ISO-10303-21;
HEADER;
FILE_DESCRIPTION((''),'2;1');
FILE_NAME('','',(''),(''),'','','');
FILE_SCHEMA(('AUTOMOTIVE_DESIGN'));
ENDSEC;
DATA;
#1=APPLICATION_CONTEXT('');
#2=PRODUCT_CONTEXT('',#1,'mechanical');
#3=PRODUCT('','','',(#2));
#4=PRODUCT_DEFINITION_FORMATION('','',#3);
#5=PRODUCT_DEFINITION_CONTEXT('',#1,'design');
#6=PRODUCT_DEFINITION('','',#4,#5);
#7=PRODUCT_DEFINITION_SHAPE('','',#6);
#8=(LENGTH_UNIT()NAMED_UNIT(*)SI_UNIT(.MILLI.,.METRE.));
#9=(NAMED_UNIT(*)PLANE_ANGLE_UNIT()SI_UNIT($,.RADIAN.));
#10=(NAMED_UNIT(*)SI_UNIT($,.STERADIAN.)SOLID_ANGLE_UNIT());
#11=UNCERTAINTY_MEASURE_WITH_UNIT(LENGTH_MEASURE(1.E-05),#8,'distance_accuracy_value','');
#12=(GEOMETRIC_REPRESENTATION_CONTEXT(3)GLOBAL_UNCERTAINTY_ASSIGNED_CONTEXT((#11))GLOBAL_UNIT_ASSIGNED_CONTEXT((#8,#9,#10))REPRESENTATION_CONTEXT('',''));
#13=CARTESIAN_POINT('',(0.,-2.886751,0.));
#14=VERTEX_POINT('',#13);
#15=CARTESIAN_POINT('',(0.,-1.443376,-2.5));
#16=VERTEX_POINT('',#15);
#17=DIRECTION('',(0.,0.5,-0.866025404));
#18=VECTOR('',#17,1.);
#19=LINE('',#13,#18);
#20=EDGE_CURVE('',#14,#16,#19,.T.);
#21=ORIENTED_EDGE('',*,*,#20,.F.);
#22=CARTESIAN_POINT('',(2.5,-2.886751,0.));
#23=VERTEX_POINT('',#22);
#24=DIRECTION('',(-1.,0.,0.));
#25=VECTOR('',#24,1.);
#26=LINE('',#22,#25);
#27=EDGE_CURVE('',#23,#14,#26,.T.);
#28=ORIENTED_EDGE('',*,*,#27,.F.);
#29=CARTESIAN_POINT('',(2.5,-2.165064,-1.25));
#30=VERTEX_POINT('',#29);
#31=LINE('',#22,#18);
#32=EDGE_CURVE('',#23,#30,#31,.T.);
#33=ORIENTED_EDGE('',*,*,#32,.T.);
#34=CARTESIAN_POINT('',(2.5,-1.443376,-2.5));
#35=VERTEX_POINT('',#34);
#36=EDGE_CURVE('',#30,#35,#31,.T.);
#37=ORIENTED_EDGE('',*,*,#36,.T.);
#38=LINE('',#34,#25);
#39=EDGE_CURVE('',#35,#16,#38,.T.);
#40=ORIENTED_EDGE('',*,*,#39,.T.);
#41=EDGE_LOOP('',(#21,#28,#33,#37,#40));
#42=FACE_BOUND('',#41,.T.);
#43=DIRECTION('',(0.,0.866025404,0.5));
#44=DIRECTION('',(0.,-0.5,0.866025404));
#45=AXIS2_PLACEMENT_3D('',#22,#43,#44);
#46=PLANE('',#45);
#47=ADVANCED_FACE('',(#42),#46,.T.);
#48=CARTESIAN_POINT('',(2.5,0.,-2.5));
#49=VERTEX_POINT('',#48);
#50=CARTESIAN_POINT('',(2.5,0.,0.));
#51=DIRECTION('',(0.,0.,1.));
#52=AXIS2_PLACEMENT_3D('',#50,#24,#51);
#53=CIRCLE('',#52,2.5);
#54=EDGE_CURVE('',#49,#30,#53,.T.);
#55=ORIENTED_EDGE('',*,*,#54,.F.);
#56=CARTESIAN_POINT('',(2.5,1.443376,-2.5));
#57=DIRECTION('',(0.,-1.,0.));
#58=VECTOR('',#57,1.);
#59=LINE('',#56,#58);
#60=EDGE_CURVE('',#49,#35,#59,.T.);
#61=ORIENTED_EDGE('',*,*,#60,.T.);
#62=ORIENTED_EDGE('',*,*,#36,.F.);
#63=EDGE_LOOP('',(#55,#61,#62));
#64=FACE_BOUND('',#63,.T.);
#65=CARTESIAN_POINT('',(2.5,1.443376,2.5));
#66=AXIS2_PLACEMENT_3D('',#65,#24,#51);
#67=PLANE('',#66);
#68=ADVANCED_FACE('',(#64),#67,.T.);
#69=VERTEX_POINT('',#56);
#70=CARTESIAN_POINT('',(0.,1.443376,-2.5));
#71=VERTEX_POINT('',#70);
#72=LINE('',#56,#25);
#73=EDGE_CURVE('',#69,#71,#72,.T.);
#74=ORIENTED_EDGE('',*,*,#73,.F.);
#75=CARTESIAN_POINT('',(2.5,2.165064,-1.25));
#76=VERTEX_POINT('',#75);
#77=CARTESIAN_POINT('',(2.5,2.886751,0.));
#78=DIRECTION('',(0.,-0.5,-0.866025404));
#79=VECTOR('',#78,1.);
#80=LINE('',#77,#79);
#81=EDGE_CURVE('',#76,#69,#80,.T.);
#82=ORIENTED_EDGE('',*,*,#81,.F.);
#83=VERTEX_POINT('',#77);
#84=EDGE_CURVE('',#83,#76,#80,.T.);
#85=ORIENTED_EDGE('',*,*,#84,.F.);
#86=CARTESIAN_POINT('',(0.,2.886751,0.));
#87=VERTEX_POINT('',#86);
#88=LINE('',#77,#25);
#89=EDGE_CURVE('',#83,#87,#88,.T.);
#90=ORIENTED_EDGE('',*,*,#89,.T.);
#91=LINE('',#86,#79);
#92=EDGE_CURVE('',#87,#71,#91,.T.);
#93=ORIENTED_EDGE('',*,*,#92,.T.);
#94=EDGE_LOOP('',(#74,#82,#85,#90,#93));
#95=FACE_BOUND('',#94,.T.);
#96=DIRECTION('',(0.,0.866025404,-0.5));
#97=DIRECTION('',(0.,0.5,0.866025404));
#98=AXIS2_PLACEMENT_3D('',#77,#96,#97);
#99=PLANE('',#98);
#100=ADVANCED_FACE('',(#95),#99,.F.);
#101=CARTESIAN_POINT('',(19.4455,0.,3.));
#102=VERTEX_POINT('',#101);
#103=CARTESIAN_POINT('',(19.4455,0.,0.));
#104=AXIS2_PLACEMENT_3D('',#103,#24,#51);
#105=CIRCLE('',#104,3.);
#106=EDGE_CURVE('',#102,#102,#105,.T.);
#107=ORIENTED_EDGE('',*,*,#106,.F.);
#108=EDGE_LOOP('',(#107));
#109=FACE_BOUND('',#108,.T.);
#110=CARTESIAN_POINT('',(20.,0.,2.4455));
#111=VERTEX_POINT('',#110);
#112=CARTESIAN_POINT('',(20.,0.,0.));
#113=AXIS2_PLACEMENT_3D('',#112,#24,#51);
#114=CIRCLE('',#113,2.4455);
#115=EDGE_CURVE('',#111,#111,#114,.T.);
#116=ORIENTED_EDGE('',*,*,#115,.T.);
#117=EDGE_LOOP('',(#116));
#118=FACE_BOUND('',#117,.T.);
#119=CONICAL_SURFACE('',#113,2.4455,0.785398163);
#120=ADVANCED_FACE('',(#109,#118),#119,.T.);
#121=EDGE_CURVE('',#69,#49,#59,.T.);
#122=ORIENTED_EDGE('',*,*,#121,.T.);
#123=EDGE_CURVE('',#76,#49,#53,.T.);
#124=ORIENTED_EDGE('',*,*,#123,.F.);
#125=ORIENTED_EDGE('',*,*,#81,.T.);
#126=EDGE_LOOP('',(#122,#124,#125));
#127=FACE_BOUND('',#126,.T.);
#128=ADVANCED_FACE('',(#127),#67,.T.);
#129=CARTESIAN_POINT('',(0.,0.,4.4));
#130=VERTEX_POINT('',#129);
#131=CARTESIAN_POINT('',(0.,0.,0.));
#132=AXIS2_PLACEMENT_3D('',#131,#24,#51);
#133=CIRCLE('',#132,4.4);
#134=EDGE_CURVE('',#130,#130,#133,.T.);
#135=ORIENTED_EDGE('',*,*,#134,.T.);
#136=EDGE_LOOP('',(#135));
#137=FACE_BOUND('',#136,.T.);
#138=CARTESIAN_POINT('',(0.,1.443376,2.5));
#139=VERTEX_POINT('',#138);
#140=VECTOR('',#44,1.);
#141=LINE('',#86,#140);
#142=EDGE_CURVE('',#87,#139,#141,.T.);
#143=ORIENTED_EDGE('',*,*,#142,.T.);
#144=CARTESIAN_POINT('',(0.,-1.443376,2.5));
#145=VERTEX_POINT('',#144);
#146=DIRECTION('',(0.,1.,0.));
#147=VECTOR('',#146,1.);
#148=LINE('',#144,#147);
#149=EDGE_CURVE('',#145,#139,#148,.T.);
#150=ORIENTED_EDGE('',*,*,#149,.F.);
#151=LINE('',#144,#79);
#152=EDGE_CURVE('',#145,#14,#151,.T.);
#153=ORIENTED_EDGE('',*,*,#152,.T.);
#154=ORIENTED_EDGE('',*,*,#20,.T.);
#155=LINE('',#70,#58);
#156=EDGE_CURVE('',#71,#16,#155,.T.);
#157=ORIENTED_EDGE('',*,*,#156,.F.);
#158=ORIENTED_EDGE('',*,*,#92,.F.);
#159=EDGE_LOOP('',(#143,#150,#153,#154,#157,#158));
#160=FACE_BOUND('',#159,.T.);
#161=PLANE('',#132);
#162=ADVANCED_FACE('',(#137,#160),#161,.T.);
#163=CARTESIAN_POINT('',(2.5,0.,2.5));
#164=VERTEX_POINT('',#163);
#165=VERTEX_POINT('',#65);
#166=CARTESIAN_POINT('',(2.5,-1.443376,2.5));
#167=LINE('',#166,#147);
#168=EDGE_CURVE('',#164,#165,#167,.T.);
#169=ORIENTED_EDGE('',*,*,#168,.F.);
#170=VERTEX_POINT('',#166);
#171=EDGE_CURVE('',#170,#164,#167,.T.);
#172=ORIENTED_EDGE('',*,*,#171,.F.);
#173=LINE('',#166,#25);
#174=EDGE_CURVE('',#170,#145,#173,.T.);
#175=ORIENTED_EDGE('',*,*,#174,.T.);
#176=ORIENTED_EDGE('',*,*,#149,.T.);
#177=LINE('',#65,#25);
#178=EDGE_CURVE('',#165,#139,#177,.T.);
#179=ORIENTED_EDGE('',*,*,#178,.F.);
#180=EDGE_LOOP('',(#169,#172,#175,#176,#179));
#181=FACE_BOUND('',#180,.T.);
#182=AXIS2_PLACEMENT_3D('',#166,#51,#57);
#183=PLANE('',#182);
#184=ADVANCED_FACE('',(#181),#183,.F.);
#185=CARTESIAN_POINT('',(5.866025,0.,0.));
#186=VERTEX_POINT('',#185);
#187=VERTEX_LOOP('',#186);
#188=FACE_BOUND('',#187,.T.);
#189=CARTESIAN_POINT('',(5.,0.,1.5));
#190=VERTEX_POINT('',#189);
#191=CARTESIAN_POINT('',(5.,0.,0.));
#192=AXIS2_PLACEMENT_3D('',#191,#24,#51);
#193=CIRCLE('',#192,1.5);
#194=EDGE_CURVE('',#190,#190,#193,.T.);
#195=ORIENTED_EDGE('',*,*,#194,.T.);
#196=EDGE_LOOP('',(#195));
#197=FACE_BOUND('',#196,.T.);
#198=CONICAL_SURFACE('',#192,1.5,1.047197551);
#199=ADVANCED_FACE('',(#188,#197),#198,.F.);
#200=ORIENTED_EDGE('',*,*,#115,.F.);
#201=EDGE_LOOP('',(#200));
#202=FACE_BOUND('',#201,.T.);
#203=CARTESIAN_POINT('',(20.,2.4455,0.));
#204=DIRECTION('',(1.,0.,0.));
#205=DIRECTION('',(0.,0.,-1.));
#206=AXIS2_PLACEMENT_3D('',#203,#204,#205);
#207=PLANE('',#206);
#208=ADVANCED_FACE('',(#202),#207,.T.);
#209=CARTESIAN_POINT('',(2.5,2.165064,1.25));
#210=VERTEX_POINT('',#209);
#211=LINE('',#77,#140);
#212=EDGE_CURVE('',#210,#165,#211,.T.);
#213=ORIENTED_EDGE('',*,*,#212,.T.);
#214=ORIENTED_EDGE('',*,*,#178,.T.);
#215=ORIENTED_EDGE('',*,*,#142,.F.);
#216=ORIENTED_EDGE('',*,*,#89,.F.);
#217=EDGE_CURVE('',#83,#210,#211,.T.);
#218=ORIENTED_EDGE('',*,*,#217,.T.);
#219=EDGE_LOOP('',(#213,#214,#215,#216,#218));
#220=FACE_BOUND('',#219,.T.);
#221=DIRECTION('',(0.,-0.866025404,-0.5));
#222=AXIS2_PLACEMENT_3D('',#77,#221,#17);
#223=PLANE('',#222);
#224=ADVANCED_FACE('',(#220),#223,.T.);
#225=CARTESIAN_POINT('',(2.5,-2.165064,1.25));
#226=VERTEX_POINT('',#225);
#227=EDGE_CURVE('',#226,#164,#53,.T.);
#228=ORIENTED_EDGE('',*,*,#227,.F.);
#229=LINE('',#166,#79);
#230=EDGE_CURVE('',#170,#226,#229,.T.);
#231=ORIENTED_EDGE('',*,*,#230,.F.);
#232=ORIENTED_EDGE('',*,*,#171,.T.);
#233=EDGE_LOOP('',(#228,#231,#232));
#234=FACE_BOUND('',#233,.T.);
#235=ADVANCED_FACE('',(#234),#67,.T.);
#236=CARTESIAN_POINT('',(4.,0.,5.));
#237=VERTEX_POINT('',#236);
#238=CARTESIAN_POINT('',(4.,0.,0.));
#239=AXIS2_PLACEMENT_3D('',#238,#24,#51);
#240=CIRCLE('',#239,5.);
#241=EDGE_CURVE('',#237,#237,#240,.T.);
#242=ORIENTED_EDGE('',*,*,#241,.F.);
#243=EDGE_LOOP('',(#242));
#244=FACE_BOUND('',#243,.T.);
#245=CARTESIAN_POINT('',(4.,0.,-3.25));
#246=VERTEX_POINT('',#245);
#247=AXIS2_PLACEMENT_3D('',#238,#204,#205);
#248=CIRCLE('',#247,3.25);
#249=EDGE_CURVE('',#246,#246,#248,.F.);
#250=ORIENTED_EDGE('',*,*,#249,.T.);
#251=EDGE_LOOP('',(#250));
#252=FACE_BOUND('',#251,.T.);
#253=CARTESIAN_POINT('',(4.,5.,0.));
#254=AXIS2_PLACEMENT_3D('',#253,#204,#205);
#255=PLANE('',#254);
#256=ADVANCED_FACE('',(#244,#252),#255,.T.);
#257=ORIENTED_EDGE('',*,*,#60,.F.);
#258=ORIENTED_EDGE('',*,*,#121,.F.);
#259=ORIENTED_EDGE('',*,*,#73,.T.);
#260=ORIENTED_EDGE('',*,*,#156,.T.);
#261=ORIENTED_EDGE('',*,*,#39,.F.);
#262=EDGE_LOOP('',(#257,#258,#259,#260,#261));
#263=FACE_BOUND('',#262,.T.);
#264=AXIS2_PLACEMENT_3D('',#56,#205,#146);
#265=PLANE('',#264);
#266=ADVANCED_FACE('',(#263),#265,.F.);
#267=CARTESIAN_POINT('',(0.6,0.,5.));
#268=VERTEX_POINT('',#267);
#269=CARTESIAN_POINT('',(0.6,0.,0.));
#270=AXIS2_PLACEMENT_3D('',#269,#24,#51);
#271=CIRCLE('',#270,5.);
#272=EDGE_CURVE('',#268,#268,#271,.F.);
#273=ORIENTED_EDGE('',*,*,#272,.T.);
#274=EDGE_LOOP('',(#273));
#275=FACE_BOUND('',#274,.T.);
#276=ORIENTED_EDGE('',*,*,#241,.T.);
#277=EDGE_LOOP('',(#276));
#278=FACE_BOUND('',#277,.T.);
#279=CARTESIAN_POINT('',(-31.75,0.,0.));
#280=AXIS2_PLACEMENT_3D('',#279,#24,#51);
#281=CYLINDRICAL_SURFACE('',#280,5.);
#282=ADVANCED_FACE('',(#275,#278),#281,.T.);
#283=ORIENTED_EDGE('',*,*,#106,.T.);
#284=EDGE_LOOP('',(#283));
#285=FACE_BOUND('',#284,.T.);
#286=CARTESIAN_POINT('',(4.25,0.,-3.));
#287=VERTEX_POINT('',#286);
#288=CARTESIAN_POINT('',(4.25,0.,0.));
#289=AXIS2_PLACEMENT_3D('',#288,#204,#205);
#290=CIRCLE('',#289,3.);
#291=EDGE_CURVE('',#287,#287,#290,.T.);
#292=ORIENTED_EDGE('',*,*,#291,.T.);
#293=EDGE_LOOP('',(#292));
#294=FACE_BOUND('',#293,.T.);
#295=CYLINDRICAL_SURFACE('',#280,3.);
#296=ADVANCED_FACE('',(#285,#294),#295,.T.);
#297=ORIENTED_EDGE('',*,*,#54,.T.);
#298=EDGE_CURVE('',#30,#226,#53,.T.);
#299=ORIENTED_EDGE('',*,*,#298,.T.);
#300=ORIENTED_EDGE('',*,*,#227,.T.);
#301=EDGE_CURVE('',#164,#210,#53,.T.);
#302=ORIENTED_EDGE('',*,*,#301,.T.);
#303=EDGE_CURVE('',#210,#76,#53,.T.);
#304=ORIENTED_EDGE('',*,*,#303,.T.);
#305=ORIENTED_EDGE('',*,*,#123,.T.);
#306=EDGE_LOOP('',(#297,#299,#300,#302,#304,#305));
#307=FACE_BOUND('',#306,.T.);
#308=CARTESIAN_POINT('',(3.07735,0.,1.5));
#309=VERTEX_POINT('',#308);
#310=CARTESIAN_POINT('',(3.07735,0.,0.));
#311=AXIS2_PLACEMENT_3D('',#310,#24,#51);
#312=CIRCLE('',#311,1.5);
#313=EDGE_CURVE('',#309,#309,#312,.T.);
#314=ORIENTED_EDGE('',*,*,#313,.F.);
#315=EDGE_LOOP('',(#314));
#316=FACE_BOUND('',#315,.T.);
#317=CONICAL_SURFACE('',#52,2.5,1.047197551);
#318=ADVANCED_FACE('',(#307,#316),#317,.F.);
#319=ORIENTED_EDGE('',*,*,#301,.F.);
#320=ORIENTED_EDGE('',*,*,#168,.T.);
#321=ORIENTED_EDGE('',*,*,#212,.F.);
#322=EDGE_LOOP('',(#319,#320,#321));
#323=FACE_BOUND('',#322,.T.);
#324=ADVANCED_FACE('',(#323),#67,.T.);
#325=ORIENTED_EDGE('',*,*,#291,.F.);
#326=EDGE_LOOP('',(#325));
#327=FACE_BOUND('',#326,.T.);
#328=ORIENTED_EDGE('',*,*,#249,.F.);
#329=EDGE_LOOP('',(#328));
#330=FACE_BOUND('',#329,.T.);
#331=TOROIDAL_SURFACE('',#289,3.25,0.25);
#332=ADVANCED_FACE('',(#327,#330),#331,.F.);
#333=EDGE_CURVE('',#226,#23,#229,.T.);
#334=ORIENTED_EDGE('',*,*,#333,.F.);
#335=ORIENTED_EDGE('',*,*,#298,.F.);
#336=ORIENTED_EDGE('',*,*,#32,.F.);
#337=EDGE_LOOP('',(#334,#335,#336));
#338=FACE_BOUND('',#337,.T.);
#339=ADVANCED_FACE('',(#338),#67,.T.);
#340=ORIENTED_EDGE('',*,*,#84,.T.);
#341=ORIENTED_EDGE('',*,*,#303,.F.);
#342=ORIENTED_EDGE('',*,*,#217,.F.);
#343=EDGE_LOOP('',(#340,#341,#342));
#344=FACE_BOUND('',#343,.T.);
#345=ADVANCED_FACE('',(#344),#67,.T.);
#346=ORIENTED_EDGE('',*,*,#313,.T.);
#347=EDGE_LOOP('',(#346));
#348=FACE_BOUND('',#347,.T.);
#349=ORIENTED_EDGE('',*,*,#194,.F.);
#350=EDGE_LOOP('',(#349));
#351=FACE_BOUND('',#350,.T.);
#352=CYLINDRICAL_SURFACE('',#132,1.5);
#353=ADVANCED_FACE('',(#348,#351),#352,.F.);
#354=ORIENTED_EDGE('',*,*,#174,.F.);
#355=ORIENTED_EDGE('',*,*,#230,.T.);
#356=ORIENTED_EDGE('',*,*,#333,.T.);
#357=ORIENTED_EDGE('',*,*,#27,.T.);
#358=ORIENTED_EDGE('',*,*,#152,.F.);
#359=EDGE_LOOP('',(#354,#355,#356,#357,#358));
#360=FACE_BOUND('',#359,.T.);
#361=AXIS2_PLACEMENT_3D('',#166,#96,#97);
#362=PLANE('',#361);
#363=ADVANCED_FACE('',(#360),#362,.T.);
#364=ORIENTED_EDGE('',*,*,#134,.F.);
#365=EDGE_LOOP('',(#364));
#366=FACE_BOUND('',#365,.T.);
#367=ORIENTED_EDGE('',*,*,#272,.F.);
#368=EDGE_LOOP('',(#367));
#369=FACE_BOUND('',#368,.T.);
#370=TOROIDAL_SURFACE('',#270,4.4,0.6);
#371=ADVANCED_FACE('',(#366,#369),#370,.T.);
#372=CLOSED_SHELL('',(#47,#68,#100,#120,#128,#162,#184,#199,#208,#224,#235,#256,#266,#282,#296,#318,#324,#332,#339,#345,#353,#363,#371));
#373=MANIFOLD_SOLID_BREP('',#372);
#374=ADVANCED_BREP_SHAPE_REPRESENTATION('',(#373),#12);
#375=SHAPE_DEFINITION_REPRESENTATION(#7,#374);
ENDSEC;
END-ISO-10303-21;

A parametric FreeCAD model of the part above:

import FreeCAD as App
import Part
import Sketcher
Q = App.Units.Quantity


def edges_at(feature, points):
    """Names of the edges that pass closest to the given points."""
    edges = feature.Shape.Edges
    near = lambda p: min(range(len(edges)), key=lambda i: edges[i].distToShape(Part.Vertex(*p))[0])
    return sorted({f"Edge{near(p) + 1}" for p in points})


def add_polygon(sketch, points):
    """Adds a closed chain of lines whose ends are joined by coincident constraints."""
    first, n = sketch.GeometryCount, len(points)
    for a, b in zip(points, points[1:] + points[:1]):
        sketch.addGeometry(Part.LineSegment(App.Vector(*a, 0), App.Vector(*b, 0)), False)
    for i in range(n):
        sketch.addConstraint(Sketcher.Constraint("Coincident", first + i, 2, first + (i + 1) % n, 1))

doc = App.newDocument("Part")
body = doc.addObject("PartDesign::Body", "Body")

# Sketch on XY plane
sketch1 = body.newObject("Sketcher::SketchObject", "Sketch")
sketch1.AttachmentSupport = (doc.getObject("XY_Plane"), [""])
sketch1.MapMode = "FlatFace"
add_polygon(sketch1, [(0, 5), (0, 0), (20, 0), (20, 2.4455), (19.4455, 3), (4, 3), (4, 5)])  # lines 0-6
sketch1.addConstraint(Sketcher.Constraint("Vertical", 0))
sketch1.addConstraint(Sketcher.Constraint("Horizontal", 1))
sketch1.addConstraint(Sketcher.Constraint("Vertical", 2))
sketch1.addConstraint(Sketcher.Constraint("Horizontal", 4))
sketch1.addConstraint(Sketcher.Constraint("Vertical", 5))
sketch1.addConstraint(Sketcher.Constraint("Horizontal", 6))
sketch1.addConstraint(Sketcher.Constraint("Coincident", 0, 2, -1, 1))
sketch1.addConstraint(Sketcher.Constraint("DistanceX", 1, 1, 1, 2, 20.0))
sketch1.addConstraint(Sketcher.Constraint("DistanceX", 6, 2, 6, 1, 4.0))
sketch1.addConstraint(Sketcher.Constraint("DistanceY", 0, 2, 0, 1, 5.0))
sketch1.addConstraint(Sketcher.Constraint("DistanceY", 5, 1, 5, 2, 2.0))
sketch1.addConstraint(Sketcher.Constraint("Angle", 3, Q("135 deg")))
sketch1.addConstraint(Sketcher.Constraint("DistanceX", 4, 2, 4, 1, 15.4455))
revolution = body.newObject("PartDesign::Revolution", "Revolution")
revolution.Profile = sketch1
revolution.ReferenceAxis = (sketch1, ["H_Axis"])
revolution.Angle = 360
doc.recompute()

fillet = body.newObject("PartDesign::Fillet", "Fillet")
fillet.Base = (revolution, edges_at(revolution, [(4, 0, -3)]))
fillet.Radius = 0.25
doc.recompute()

fillet2 = body.newObject("PartDesign::Fillet", "Fillet001")
fillet2.Base = (fillet, edges_at(fillet, [(0, 0, -5)]))
fillet2.Radius = 0.6

# Sketch on YZ plane
sketch2 = body.newObject("Sketcher::SketchObject", "Sketch001")
sketch2.AttachmentSupport = (doc.getObject("YZ_Plane"), [""])
sketch2.MapMode = "FlatFace"
add_polygon(sketch2, [(2.886751, 0), (1.443376, -2.5), (-1.443376, -2.5), (-2.886751, 0), (-1.443376, 2.5), (1.443376, 2.5)])  # lines 0-5
sketch2.addConstraint(Sketcher.Constraint("Horizontal", 1))
sketch2.addConstraint(Sketcher.Constraint("Horizontal", 4))
sketch2.addConstraint(Sketcher.Constraint("Symmetric", 0, 2, 3, 2, -1, 1))
sketch2.addConstraint(Sketcher.Constraint("Symmetric", 2, 2, 5, 2, -1, 1))
sketch2.addConstraint(Sketcher.Constraint("PointOnObject", 2, 2, -1))
sketch2.addConstraint(Sketcher.Constraint("Parallel", 2, 5))
sketch2.addConstraint(Sketcher.Constraint("Vertical", 1, 2, 3, 2))
sketch2.addConstraint(Sketcher.Constraint("Angle", 0, Q("-120 deg")))
sketch2.addConstraint(Sketcher.Constraint("DistanceY", 1, 2, 3, 2, 5.0))
sketch2.addConstraint(Sketcher.Constraint("DistanceX", 1, 2, 1, 1, 2.886751))
pocket1 = body.newObject("PartDesign::Pocket", "Pocket")
pocket1.Profile = sketch2
pocket1.Length = 2.5
pocket1.Reversed = True

# Sketch on XY plane
sketch3 = body.newObject("Sketcher::SketchObject", "Sketch002")
sketch3.AttachmentSupport = (doc.getObject("XY_Plane"), [""])
sketch3.MapMode = "FlatFace"
add_polygon(sketch3, [(2.5, 2.5), (0, 2.5), (0, 0), (5.866025, 0), (5, 1.5), (3.07735, 1.5)])  # lines 0-5
sketch3.addConstraint(Sketcher.Constraint("Horizontal", 0))
sketch3.addConstraint(Sketcher.Constraint("Vertical", 1))
sketch3.addConstraint(Sketcher.Constraint("Horizontal", 2))
sketch3.addConstraint(Sketcher.Constraint("Horizontal", 4))
sketch3.addConstraint(Sketcher.Constraint("Coincident", 1, 2, -1, 1))
sketch3.addConstraint(Sketcher.Constraint("Parallel", 3, 5))
sketch3.addConstraint(Sketcher.Constraint("Equal", 0, 1))
sketch3.addConstraint(Sketcher.Constraint("Angle", 3, Q("120 deg")))
sketch3.addConstraint(Sketcher.Constraint("DistanceX", 0, 2, 0, 1, 2.5))
sketch3.addConstraint(Sketcher.Constraint("DistanceX", -1, 1, 3, 2, 5.0))
sketch3.addConstraint(Sketcher.Constraint("DistanceY", 3, 2, 0, 2, 1.0))
groove = body.newObject("PartDesign::Groove", "Groove")
groove.Profile = sketch3
groove.ReferenceAxis = (sketch3, ["H_Axis"])
groove.Angle = 360

doc.recompute()
